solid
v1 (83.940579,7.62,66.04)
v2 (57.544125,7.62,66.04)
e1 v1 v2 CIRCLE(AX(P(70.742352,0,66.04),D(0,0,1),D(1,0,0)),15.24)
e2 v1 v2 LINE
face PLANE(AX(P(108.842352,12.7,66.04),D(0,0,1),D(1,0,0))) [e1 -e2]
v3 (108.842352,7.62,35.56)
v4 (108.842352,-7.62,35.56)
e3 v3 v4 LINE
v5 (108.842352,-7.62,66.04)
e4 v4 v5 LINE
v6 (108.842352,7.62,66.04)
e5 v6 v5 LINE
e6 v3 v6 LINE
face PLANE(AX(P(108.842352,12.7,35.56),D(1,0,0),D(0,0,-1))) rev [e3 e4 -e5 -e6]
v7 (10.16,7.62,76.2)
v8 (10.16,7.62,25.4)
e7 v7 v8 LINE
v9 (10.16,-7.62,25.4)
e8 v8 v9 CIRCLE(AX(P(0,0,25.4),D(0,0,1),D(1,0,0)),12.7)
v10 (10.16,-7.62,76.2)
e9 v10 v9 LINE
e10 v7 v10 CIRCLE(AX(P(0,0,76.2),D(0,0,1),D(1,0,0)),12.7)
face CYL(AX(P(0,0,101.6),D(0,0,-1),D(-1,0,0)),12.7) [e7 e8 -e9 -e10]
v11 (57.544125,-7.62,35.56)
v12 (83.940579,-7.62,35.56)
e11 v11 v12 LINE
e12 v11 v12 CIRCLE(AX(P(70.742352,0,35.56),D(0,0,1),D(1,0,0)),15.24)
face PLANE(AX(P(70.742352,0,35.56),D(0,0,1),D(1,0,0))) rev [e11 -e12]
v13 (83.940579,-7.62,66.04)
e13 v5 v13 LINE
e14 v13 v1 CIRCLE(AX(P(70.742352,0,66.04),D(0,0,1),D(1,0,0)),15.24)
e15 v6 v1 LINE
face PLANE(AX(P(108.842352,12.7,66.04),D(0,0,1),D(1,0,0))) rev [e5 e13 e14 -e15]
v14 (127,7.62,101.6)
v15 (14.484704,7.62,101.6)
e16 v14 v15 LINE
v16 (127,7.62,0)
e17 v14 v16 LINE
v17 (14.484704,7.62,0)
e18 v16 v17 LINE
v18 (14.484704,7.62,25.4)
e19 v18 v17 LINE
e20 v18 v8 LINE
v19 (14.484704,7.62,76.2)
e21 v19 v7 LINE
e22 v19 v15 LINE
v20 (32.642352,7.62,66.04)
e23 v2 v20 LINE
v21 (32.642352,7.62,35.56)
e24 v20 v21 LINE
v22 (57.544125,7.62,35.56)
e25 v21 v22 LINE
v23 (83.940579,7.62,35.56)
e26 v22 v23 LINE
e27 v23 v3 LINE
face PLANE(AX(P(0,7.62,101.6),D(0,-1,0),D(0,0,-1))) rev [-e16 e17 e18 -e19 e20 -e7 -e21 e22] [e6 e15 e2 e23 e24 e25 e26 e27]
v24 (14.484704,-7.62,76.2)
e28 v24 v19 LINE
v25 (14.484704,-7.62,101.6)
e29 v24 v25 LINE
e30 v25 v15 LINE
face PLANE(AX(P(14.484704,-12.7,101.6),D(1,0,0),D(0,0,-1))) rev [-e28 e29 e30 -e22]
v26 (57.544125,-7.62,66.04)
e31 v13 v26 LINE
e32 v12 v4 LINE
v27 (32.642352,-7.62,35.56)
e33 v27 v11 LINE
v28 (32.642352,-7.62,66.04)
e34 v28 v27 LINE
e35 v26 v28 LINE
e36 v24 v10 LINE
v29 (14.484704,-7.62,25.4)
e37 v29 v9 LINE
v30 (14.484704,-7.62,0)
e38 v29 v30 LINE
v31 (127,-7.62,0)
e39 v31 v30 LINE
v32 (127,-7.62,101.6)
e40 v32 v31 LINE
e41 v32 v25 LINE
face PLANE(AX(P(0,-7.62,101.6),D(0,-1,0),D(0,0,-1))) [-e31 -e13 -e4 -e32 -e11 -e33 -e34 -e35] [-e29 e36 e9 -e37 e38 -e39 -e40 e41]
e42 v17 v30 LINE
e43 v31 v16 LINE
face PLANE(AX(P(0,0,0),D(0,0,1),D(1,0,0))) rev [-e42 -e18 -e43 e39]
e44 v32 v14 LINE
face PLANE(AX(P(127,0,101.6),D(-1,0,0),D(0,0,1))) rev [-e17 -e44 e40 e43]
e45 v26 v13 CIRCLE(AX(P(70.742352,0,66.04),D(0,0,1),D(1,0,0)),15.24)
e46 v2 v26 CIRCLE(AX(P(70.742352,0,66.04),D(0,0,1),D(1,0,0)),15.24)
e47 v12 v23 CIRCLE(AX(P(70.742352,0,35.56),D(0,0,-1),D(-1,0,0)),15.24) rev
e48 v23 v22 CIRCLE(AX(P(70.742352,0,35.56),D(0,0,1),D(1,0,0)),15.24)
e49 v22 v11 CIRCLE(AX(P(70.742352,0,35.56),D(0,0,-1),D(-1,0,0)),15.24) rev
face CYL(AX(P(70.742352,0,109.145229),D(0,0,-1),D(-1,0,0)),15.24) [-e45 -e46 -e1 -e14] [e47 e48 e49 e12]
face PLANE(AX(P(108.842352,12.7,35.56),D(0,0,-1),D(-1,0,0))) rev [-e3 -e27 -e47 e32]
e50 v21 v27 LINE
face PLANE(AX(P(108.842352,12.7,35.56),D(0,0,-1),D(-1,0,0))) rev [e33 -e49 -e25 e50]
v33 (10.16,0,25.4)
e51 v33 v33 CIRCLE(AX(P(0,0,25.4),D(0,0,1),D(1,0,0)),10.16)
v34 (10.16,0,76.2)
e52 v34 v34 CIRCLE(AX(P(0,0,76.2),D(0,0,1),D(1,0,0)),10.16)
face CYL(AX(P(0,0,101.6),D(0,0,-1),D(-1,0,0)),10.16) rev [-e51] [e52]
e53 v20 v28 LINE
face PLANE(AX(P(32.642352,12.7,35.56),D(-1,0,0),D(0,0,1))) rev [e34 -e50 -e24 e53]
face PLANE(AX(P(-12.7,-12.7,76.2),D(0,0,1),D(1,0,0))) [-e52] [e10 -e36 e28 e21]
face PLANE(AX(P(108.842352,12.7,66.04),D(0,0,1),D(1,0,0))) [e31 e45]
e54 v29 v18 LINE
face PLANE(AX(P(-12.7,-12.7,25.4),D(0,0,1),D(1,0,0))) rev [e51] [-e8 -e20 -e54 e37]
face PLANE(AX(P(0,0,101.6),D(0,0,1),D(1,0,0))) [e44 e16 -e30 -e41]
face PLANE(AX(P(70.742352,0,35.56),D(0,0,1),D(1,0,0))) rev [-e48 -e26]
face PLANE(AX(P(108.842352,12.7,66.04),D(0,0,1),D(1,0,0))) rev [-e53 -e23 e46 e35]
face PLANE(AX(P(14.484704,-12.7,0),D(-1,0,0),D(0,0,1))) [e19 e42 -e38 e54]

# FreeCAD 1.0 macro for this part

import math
import FreeCAD as App
import Part
import Sketcher
Q = App.Units.Quantity


def add_polygon(sketch, points):
    """Adds a closed chain of lines whose ends are joined by coincident constraints."""
    first, n = sketch.GeometryCount, len(points)
    for a, b in zip(points, points[1:] + points[:1]):
        sketch.addGeometry(Part.LineSegment(App.Vector(*a, 0), App.Vector(*b, 0)), False)
    for i in range(n):
        sketch.addConstraint(Sketcher.Constraint("Coincident", first + i, 2, first + (i + 1) % n, 1))

doc = App.newDocument("Part")
params = doc.addObject("Spreadsheet::Sheet", "Params")
for row, (alias, value) in enumerate([
    ("sketch1_diameter", "0.8 in"),
    ("sketch1_radius", "0.5 in"),
    ("sketch1_width", "4.6 in"),
    ("sketch1_height", "0.6 in"),
    ("pad1_length", "4 in"),
    ("sketch2_height", "1 in"),
    ("sketch3_width", "3 in"),
    ("sketch3_height", "1.2 in"),
    ("sketch4_diameter", "1.2 in"),
    ("pad2_length", "1.2 in"),
], start=1):
    params.set(f"A{row}", alias)
    params.set(f"B{row}", "=" + value)
    params.setAlias(f"B{row}", alias)

body = doc.addObject("PartDesign::Body", "Body")

# Sketch on XY plane
sketch1 = doc.addObject("Sketcher::SketchObject", "Sketch")
body.addObject(sketch1)
sketch1.AttachmentSupport = (doc.XY_Plane, [""])
sketch1.MapMode = "FlatFace"
sketch1.addGeometry([
    Part.LineSegment(App.Vector(10, -8, 0), App.Vector(127, -8, 0)),  # 0
    Part.LineSegment(App.Vector(127, -8, 0), App.Vector(127, 8, 0)),  # 1
    Part.LineSegment(App.Vector(127, 8, 0), App.Vector(10, 8, 0)),  # 2
    Part.ArcOfCircle(Part.Circle(App.Vector(0, 0, 0), App.Vector(0, 0, 1), 13), math.radians(37), math.radians(323)),  # 3
    Part.Circle(App.Vector(0, 0, 0), App.Vector(0, 0, 1), 10),  # 4
], False)
sketch1.addConstraint([
    Sketcher.Constraint("Coincident", 0, 2, 1, 1),
    Sketcher.Constraint("Coincident", 1, 2, 2, 1),
    Sketcher.Constraint("Coincident", 2, 2, 3, 1),
    Sketcher.Constraint("Coincident", 3, 2, 0, 1),
    Sketcher.Constraint("Horizontal", 0),
    Sketcher.Constraint("Vertical", 1),
    Sketcher.Constraint("Horizontal", 2),
    Sketcher.Constraint("Coincident", 3, 3, -1, 1),
    Sketcher.Constraint("Coincident", 4, 3, -1, 1),
    Sketcher.Constraint("Vertical", 2, 2, 3, 2),
    Sketcher.Constraint("Diameter", 4, Q("0.8 in")),
    Sketcher.Constraint("Radius", 3, Q("0.5 in")),
    Sketcher.Constraint("DistanceX", 0, 1, 0, 2, Q("4.6 in")),
    Sketcher.Constraint("DistanceY", 1, 1, 1, 2, Q("0.6 in")),
])
sketch1.setExpression("Constraints[10]", "Params.sketch1_diameter")
sketch1.setExpression("Constraints[11]", "Params.sketch1_radius")
sketch1.setExpression("Constraints[12]", "Params.sketch1_width")
sketch1.setExpression("Constraints[13]", "Params.sketch1_height")
pad1 = doc.addObject("PartDesign::Pad", "Pad")
body.addObject(pad1)
pad1.Profile = sketch1
pad1.setExpression("Length", "Params.pad1_length")

# Sketch on XZ plane
sketch2 = doc.addObject("Sketcher::SketchObject", "Sketch001")
body.addObject(sketch2)
sketch2.AttachmentSupport = (doc.XZ_Plane, [""])
sketch2.MapMode = "FlatFace"
sketch2.AttachmentOffset = App.Placement(App.Vector(0, 0, -0.3 * 25.4), App.Rotation())
add_polygon(sketch2, [(-13, 76), (-13, 102), (14, 102), (14, 76)])  # lines 0-3
add_polygon(sketch2, [(-13, 0), (-13, 25), (14, 25), (14, 0)])  # lines 4-7
sketch2.addConstraint([
    Sketcher.Constraint("Vertical", 0),
    Sketcher.Constraint("Horizontal", 1),
    Sketcher.Constraint("Vertical", 2),
    Sketcher.Constraint("Horizontal", 3),
    Sketcher.Constraint("Vertical", 4),
    Sketcher.Constraint("Horizontal", 5),
    Sketcher.Constraint("Vertical", 6),
    Sketcher.Constraint("Horizontal", 7),
    Sketcher.Constraint("PointOnObject", 6, 2, -1),
    Sketcher.Constraint("Vertical", 3, 2, 4, 2),
    Sketcher.Constraint("Vertical", 2, 2, 5, 2),
    Sketcher.Constraint("Equal", 2, 4),
    Sketcher.Constraint("DistanceY", 0, 1, 0, 2, Q("1 in")),
    Sketcher.Constraint("DistanceY", -1, 1, 0, 2, Q("4 in")),
    Sketcher.Constraint("DistanceX", 0, 2, -1, 1, Q("0.5 in")),
    Sketcher.Constraint("DistanceX", 1, 1, 1, 2, 27.184704),
])
sketch2.setExpression("Constraints[20]", "Params.sketch2_height")
pocket1 = doc.addObject("PartDesign::Pocket", "Pocket")
body.addObject(pocket1)
pocket1.Profile = sketch2
pocket1.Type = "ThroughAll"
pocket1.Midplane = True

# Sketch on XZ plane
sketch3 = doc.addObject("Sketcher::SketchObject", "Sketch002")
body.addObject(sketch3)
sketch3.AttachmentSupport = (doc.XZ_Plane, [""])
sketch3.MapMode = "FlatFace"
sketch3.AttachmentOffset = App.Placement(App.Vector(0, 0, 0.3 * 25.4), App.Rotation())
add_polygon(sketch3, [(33, 66), (33, 36), (109, 36), (109, 66)])  # lines 0-3
sketch3.addConstraint([
    Sketcher.Constraint("Vertical", 0),
    Sketcher.Constraint("Horizontal", 1),
    Sketcher.Constraint("Vertical", 2),
    Sketcher.Constraint("Horizontal", 3),
    Sketcher.Constraint("DistanceX", 1, 1, 1, 2, Q("3 in")),
    Sketcher.Constraint("DistanceY", 0, 2, 0, 1, Q("1.2 in")),
    Sketcher.Constraint("DistanceY", -1, 1, 0, 2, Q("1.4 in")),
    Sketcher.Constraint("DistanceX", -1, 1, 0, 2, 32.642352),
])
sketch3.setExpression("Constraints[8]", "Params.sketch3_width")
sketch3.setExpression("Constraints[9]", "Params.sketch3_height")
pocket2 = doc.addObject("PartDesign::Pocket", "Pocket001")
body.addObject(pocket2)
pocket2.Profile = sketch3
pocket2.Type = "ThroughAll"

# Sketch on XY plane
sketch4 = doc.addObject("Sketcher::SketchObject", "Sketch003")
body.addObject(sketch4)
sketch4.AttachmentSupport = (doc.XY_Plane, [""])
sketch4.MapMode = "FlatFace"
sketch4.AttachmentOffset = App.Placement(App.Vector(0, 0, 1.4 * 25.4), App.Rotation())
sketch4.addGeometry(Part.Circle(App.Vector(71, 0, 0), App.Vector(0, 0, 1), 15), False)
sketch4.addConstraint([
    Sketcher.Constraint("PointOnObject", 0, 3, -1),
    Sketcher.Constraint("Diameter", 0, Q("1.2 in")),
    Sketcher.Constraint("DistanceX", -1, 1, 0, 3, 70.742352),
])
sketch4.setExpression("Constraints[1]", "Params.sketch4_diameter")
pad2 = doc.addObject("PartDesign::Pad", "Pad001")
body.addObject(pad2)
pad2.Profile = sketch4
pad2.setExpression("Length", "Params.pad2_length")

doc.recompute()
